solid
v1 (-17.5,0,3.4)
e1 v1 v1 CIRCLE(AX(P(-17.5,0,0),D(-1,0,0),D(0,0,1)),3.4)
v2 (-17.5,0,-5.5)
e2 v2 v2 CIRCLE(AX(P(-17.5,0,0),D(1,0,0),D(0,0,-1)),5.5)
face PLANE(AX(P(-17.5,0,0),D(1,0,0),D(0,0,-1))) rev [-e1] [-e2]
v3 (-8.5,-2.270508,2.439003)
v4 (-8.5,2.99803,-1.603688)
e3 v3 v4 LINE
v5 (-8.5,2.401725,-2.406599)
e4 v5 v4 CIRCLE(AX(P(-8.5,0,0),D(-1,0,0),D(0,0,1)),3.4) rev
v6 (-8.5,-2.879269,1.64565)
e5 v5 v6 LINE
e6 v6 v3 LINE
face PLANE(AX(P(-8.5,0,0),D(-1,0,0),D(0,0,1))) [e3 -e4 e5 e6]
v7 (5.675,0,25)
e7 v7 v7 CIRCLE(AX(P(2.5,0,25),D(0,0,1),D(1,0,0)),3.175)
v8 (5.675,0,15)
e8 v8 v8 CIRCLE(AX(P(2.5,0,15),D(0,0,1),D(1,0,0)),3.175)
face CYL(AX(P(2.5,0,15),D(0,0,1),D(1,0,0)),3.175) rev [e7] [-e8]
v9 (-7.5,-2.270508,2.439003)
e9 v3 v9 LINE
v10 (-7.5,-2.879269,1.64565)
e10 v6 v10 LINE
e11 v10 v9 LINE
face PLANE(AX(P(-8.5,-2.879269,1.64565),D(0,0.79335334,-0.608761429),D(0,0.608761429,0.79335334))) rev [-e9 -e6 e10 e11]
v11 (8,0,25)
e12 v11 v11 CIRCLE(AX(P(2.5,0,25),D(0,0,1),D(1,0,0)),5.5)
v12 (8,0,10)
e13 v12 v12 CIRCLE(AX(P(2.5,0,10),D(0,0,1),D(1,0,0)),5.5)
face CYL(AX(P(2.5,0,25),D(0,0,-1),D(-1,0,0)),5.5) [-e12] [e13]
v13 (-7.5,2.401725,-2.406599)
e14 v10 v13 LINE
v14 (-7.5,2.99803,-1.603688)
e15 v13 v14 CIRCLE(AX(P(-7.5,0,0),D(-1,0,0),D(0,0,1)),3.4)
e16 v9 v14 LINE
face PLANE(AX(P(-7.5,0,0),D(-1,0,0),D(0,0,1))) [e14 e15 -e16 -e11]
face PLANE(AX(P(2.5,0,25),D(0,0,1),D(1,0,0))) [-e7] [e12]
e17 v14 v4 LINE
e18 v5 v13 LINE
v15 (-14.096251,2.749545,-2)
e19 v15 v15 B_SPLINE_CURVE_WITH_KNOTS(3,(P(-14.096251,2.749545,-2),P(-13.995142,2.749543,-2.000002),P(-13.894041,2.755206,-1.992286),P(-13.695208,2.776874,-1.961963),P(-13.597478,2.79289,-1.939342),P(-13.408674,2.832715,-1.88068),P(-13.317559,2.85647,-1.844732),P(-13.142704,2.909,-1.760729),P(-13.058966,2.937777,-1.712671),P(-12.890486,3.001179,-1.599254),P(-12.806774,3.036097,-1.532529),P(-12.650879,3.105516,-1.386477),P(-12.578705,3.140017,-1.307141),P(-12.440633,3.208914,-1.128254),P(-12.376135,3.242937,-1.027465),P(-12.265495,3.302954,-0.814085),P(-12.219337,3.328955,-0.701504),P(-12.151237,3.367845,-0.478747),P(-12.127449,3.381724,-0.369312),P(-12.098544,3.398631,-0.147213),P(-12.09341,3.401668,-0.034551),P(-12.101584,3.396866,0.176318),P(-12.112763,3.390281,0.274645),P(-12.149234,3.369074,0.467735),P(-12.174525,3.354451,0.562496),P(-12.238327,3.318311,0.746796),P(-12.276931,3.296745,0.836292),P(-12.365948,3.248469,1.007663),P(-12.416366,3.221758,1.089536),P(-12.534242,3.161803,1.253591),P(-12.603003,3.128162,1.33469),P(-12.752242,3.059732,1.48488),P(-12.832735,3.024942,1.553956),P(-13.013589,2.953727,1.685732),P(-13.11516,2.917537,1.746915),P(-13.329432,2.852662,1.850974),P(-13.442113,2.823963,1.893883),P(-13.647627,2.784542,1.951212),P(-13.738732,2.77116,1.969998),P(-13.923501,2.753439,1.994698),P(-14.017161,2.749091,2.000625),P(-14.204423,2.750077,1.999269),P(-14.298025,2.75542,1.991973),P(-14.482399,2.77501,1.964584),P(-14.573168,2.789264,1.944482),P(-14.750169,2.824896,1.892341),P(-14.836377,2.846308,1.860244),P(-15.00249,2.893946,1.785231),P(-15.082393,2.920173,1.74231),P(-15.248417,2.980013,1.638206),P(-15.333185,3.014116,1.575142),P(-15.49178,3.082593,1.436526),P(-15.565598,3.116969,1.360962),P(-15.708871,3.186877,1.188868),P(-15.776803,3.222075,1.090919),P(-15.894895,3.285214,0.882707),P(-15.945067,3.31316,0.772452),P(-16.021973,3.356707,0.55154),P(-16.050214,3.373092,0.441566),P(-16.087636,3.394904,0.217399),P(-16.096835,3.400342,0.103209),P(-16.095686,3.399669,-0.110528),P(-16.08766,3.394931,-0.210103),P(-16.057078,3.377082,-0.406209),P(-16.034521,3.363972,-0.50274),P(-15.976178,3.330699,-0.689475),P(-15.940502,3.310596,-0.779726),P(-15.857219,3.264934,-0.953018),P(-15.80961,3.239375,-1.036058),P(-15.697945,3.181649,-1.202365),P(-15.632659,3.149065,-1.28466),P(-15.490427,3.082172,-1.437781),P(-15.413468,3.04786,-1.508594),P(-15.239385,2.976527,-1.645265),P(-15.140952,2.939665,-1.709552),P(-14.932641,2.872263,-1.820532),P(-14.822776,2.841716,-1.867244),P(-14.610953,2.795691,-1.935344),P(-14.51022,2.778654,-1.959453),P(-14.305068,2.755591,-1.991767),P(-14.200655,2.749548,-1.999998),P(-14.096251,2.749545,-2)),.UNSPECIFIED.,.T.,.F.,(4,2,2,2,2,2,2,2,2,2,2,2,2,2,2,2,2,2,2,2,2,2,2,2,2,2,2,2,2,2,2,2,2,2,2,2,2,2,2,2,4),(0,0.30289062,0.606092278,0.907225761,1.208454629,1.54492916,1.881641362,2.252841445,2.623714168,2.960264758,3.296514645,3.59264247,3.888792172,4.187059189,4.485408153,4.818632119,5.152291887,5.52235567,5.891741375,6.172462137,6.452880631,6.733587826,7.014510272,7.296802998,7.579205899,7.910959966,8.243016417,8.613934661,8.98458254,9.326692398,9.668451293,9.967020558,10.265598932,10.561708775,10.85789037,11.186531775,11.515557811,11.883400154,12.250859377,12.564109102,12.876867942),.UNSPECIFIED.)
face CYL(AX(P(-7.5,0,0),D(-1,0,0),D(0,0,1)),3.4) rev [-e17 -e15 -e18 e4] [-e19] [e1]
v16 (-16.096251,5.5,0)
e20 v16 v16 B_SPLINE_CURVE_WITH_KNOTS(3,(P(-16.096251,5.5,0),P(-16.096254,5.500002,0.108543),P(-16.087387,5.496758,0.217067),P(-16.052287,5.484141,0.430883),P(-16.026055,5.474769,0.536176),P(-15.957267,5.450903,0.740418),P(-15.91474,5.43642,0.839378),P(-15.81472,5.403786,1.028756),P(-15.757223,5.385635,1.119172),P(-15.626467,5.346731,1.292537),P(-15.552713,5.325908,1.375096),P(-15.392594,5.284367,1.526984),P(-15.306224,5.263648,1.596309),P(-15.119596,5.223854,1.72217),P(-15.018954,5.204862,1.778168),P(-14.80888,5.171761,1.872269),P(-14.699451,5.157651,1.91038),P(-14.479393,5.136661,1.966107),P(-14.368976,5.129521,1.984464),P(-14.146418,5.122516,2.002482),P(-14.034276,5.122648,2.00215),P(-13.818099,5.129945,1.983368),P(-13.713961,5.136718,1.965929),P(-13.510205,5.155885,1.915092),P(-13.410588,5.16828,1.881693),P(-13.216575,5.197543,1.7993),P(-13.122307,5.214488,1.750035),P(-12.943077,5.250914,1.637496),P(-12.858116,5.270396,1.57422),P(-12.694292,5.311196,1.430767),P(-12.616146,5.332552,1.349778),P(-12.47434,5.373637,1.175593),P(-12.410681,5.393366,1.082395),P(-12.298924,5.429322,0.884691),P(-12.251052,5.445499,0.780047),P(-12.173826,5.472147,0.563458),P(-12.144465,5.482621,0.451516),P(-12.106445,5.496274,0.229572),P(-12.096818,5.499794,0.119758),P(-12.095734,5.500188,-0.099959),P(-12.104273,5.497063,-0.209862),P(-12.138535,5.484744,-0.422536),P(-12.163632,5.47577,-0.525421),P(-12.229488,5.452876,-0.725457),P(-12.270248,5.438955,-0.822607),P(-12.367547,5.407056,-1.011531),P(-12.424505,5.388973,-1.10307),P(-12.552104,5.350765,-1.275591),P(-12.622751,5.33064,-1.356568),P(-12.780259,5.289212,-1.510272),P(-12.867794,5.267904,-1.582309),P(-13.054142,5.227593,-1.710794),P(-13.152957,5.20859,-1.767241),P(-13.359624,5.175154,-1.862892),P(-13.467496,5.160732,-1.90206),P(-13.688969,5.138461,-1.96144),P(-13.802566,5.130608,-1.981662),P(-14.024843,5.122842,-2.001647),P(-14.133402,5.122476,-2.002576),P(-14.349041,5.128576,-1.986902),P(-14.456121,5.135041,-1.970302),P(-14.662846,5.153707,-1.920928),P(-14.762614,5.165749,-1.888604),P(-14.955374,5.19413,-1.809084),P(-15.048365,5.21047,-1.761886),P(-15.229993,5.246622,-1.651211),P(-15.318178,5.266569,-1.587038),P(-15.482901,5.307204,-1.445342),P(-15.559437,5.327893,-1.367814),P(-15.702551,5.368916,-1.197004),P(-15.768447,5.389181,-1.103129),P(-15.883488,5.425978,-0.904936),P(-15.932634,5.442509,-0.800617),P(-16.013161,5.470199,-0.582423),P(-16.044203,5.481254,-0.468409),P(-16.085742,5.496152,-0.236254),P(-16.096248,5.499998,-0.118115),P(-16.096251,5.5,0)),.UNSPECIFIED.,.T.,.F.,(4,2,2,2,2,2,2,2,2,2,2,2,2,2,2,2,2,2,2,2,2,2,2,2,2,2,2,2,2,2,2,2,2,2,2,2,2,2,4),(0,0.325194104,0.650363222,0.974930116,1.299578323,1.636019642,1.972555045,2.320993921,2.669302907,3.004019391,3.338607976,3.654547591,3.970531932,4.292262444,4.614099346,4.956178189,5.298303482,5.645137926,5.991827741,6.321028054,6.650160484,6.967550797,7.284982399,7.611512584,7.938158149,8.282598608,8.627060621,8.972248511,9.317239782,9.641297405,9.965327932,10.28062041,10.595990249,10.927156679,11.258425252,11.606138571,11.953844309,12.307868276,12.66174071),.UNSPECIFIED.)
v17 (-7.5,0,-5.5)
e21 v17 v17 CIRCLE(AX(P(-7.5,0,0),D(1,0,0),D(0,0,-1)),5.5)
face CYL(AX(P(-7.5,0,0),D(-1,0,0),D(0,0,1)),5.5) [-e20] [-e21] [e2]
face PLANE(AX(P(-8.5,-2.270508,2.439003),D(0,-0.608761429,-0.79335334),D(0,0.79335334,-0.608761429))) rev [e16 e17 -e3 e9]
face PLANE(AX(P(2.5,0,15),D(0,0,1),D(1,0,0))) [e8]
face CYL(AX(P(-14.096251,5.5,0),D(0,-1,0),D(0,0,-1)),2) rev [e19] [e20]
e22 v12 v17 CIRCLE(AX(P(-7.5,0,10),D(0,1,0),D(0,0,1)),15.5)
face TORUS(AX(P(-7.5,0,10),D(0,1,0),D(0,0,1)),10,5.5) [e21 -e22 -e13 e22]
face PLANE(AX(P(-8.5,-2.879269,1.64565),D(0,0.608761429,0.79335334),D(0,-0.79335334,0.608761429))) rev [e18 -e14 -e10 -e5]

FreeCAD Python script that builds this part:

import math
import FreeCAD as App
import Part
import Sketcher

V = App.Vector
Q = App.Units.Quantity

doc = App.newDocument("Part")
body = doc.addObject("PartDesign::Body", "Body")

sketch1 = doc.addObject("Sketcher::SketchObject", "Sketch")
body.addObject(sketch1)
sketch1.AttachmentSupport = (doc.XY_Plane, [""])
sketch1.MapMode = "FlatFace"
sketch1.AttachmentOffset = App.Placement(V(0, 0, 25), App.Rotation())
sketch1.addGeometry(Part.Circle(V(2, 0, 0), V(0, 0, 1), 6), False)
sketch1.addConstraint([
    Sketcher.Constraint("PointOnObject", 0, 3, -1),
    Sketcher.Constraint("Diameter", 0, 11.0),
    Sketcher.Constraint("DistanceX", -1, 1, 0, 3, 2.5),
])

sketch2 = doc.addObject("Sketcher::SketchObject", "Sketch001")
body.addObject(sketch2)
sketch2.AttachmentSupport = (doc.XZ_Plane, [""])
sketch2.MapMode = "FlatFace"
sketch2.addGeometry([
    Part.LineSegment(V(2, 25, 0), V(2, 10, 0)),
    Part.ArcOfCircle(Part.Circle(V(-8, 10, 0), V(0, 0, 1), 10), math.radians(-90), math.radians(0)),
    Part.LineSegment(V(-8, 0, 0), V(-18, 0, 0)),
], False)
sketch2.addConstraint([
    Sketcher.Constraint("Tangent", 0, 2, 1, 2),
    Sketcher.Constraint("Tangent", 1, 1, 2, 1),
    Sketcher.Constraint("Vertical", 0),
    Sketcher.Constraint("Horizontal", 2),
    Sketcher.Constraint("PointOnObject", 1, 1, -1),
    Sketcher.Constraint("Radius", 1, 10.0),
    Sketcher.Constraint("DistanceX", 2, 2, 2, 1, 10.0),
    Sketcher.Constraint("DistanceY", 0, 2, 0, 1, 15.0),
    Sketcher.Constraint("DistanceX", 1, 3, -1, 1, 7.5),
])
doc.recompute()

additivepipe = doc.addObject("PartDesign::AdditivePipe", "AdditivePipe")
body.addObject(additivepipe)
additivepipe.Profile = sketch1
additivepipe.Spine = (sketch2, ["Edge1", "Edge2", "Edge3"])

sketch3 = doc.addObject("Sketcher::SketchObject", "Sketch002")
body.addObject(sketch3)
sketch3.AttachmentSupport = (doc.XY_Plane, [""])
sketch3.MapMode = "FlatFace"
sketch3.AttachmentOffset = App.Placement(V(0, 0, 25), App.Rotation())
sketch3.addGeometry(Part.Circle(V(2.5, 0, 0), V(0, 0, 1), 3.2), False)
sketch3.addConstraint([
    Sketcher.Constraint("PointOnObject", 0, 3, -1),
    Sketcher.Constraint("Diameter", 0, 6.35),
    Sketcher.Constraint("DistanceX", -1, 1, 0, 3, 2.5),
])
pocket1 = doc.addObject("PartDesign::Pocket", "Pocket")
body.addObject(pocket1)
pocket1.Profile = sketch3
pocket1.Length = 10

sketch4 = doc.addObject("Sketcher::SketchObject", "Sketch003")
body.addObject(sketch4)
sketch4.AttachmentSupport = (doc.YZ_Plane, [""])
sketch4.MapMode = "FlatFace"
sketch4.AttachmentOffset = App.Placement(V(0, 0, -17.5), App.Rotation())
sketch4.addGeometry(Part.Circle(V(0, 0, 0), V(0, 0, 1), 3.4), False)
sketch4.addConstraint([
    Sketcher.Constraint("Coincident", 0, 3, -1, 1),
    Sketcher.Constraint("Diameter", 0, 6.8),
])
pocket2 = doc.addObject("PartDesign::Pocket", "Pocket001")
body.addObject(pocket2)
pocket2.Profile = sketch4
pocket2.Length = 10
pocket2.Reversed = True

sketch5 = doc.addObject("Sketcher::SketchObject", "Sketch004")
body.addObject(sketch5)
sketch5.AttachmentSupport = (doc.XZ_Plane, [""])
sketch5.MapMode = "FlatFace"
sketch5.addGeometry(Part.Circle(V(-14.1, 0, 0), V(0, 0, 1), 2), False)
sketch5.addConstraint([
    Sketcher.Constraint("PointOnObject", 0, 3, -1),
    Sketcher.Constraint("Diameter", 0, 4.0),
    Sketcher.Constraint("DistanceX", 0, 3, -1, 1, 14.096251),
])
pocket3 = doc.addObject("PartDesign::Pocket", "Pocket002")
body.addObject(pocket3)
pocket3.Profile = sketch5
pocket3.Type = "ThroughAll"

sketch6 = doc.addObject("Sketcher::SketchObject", "Sketch005")
body.addObject(sketch6)
sketch6.AttachmentSupport = (doc.YZ_Plane, [""])
sketch6.MapMode = "FlatFace"
sketch6.AttachmentOffset = App.Placement(V(0, 0, -7.5), App.Rotation())
sketch6.addGeometry([
    Part.LineSegment(V(2.5, -2.5, 0), V(-2.9, 1.6, 0)),
    Part.LineSegment(V(-2.9, 1.6, 0), V(-2.3, 2.4, 0)),
    Part.LineSegment(V(-2.3, 2.4, 0), V(3.1, -1.7, 0)),
    Part.LineSegment(V(3.1, -1.7, 0), V(2.5, -2.5, 0)),
], False)
sketch6.addConstraint([
    Sketcher.Constraint("Coincident", 0, 2, 1, 1),
    Sketcher.Constraint("Coincident", 1, 2, 2, 1),
    Sketcher.Constraint("Coincident", 2, 2, 3, 1),
    Sketcher.Constraint("Coincident", 3, 2, 0, 1),
    Sketcher.Constraint("Perpendicular", 0, 1),
    Sketcher.Constraint("Perpendicular", 1, 2),
    Sketcher.Constraint("Perpendicular", 2, 3),
    Sketcher.Constraint("Distance", 1, 1.0),
    Sketcher.Constraint("Angle", 0, Q("142.5 deg")),
    Sketcher.Constraint("Distance", 0, 6.737912),
    Sketcher.Constraint("DistanceX", 0, 2, -1, 1, 2.879269),
    Sketcher.Constraint("DistanceY", -1, 1, 0, 2, 1.64565),
])
pad1 = doc.addObject("PartDesign::Pad", "Pad")
body.addObject(pad1)
pad1.Profile = sketch6
pad1.Length = 1
pad1.Reversed = True

doc.recompute()
